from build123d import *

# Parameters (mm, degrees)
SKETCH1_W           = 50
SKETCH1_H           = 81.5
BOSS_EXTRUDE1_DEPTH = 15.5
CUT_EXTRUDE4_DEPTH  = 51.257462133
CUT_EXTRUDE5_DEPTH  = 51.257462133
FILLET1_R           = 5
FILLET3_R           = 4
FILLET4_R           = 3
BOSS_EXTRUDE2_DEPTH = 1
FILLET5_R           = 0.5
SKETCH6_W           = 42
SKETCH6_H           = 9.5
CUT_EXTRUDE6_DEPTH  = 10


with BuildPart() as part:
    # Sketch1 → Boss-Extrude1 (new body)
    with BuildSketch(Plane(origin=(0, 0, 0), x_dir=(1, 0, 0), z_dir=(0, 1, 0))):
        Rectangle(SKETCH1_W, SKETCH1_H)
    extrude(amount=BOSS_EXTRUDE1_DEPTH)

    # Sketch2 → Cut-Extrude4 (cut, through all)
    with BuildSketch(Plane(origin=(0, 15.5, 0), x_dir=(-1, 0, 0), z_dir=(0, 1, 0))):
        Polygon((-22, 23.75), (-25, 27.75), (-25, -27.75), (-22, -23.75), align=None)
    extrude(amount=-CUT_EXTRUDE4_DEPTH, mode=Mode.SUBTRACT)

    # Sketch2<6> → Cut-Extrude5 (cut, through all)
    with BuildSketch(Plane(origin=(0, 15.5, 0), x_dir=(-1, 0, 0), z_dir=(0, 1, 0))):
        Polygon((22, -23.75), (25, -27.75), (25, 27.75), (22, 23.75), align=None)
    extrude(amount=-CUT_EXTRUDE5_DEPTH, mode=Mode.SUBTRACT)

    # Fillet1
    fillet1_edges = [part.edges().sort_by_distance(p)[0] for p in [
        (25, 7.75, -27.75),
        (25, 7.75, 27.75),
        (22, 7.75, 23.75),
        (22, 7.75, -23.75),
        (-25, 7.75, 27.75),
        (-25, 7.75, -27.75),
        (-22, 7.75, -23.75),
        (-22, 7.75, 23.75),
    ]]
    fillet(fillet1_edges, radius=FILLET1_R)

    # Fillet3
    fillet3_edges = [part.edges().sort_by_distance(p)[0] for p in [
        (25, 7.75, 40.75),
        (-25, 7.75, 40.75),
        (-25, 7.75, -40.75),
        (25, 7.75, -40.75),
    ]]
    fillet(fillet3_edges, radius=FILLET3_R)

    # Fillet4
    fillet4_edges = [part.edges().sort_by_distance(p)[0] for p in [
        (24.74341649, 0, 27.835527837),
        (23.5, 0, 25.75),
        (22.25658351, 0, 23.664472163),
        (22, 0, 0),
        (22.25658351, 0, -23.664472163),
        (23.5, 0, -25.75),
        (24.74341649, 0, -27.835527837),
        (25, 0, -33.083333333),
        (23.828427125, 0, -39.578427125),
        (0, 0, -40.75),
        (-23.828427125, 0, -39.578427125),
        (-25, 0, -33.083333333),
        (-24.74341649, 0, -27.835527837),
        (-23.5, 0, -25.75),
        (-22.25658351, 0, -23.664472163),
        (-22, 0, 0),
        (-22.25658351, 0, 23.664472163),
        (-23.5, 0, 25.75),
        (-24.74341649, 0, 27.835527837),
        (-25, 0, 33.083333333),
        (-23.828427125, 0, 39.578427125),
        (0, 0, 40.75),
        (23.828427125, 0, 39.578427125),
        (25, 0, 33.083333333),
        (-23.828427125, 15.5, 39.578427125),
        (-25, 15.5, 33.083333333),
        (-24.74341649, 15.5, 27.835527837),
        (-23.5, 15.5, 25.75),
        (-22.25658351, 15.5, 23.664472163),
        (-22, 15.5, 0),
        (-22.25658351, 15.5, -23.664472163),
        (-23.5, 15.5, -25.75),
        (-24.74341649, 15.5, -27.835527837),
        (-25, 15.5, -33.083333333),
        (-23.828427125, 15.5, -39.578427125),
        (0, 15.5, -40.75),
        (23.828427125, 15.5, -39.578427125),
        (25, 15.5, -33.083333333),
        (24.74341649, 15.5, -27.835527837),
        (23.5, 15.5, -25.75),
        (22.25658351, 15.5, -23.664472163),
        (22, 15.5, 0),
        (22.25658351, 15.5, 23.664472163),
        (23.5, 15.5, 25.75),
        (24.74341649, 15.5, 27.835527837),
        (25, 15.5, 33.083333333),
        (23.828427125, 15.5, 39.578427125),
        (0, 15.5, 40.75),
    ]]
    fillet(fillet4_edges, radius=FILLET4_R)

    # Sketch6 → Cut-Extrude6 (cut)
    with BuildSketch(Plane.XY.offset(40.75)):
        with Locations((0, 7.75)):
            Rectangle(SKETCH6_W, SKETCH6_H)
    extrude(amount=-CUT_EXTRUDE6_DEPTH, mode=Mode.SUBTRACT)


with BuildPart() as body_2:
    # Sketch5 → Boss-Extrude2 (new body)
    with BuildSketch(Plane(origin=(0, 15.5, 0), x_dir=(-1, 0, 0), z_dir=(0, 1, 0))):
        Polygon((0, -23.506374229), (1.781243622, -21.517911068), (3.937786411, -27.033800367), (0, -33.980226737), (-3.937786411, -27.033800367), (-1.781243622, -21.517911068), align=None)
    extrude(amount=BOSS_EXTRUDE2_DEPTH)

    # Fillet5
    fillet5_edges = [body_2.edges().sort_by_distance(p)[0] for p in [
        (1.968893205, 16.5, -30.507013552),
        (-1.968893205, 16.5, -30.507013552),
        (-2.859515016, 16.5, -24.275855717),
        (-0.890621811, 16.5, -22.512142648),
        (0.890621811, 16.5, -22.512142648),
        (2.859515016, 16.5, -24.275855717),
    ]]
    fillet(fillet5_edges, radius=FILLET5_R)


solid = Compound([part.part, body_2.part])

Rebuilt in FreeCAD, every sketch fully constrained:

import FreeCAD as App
import Part
import Sketcher
from FreeCAD import Vector
Q = App.Units.Quantity


def edges_at(feature, points):
    """Names of the edges that pass closest to the given points."""
    edges = feature.Shape.Edges
    near = lambda p: min(range(len(edges)), key=lambda i: edges[i].distToShape(Part.Vertex(*p))[0])
    return sorted({f"Edge{near(p) + 1}" for p in points})

doc = App.newDocument("Part")
body = doc.addObject("PartDesign::Body", "Body")

sketch1 = doc.addObject("Sketcher::SketchObject", "Sketch")
body.addObject(sketch1)
sketch1.AttachmentSupport = (doc.XZ_Plane, [""])
sketch1.MapMode = "FlatFace"
sketch1.addGeometry(Part.LineSegment(Vector(-25, -41, 0), Vector(-25, 41, 0)), False)
sketch1.addGeometry(Part.LineSegment(Vector(-25, 41, 0), Vector(25, 41, 0)), False)
sketch1.addGeometry(Part.LineSegment(Vector(25, 41, 0), Vector(25, -41, 0)), False)
sketch1.addGeometry(Part.LineSegment(Vector(25, -41, 0), Vector(-25, -41, 0)), False)
sketch1.addConstraint(Sketcher.Constraint("Coincident", 0, 2, 1, 1))
sketch1.addConstraint(Sketcher.Constraint("Coincident", 1, 2, 2, 1))
sketch1.addConstraint(Sketcher.Constraint("Coincident", 2, 2, 3, 1))
sketch1.addConstraint(Sketcher.Constraint("Coincident", 3, 2, 0, 1))
sketch1.addConstraint(Sketcher.Constraint("Vertical", 0))
sketch1.addConstraint(Sketcher.Constraint("Horizontal", 1))
sketch1.addConstraint(Sketcher.Constraint("Vertical", 2))
sketch1.addConstraint(Sketcher.Constraint("Horizontal", 3))
sketch1.addConstraint(Sketcher.Constraint("Symmetric", 0, 2, 2, 2, -1, 1))
sketch1.addConstraint(Sketcher.Constraint("DistanceX", 1, 1, 1, 2, Q("50 mm")))
sketch1.addConstraint(Sketcher.Constraint("DistanceY", 0, 1, 0, 2, Q("81.5 mm")))
pad1 = doc.addObject("PartDesign::Pad", "Pad")
body.addObject(pad1)
pad1.Profile = sketch1
pad1.Length = 15.5
pad1.Reversed = True

sketch2 = doc.addObject("Sketcher::SketchObject", "Sketch001")
body.addObject(sketch2)
sketch2.AttachmentSupport = (doc.XZ_Plane, [""])
sketch2.MapMode = "FlatFace"
sketch2.AttachmentOffset = App.Placement(Vector(0, 0, -15.5), App.Rotation())
sketch2.addGeometry(Part.LineSegment(Vector(22, 24, 0), Vector(25, 28, 0)), False)
sketch2.addGeometry(Part.LineSegment(Vector(25, 28, 0), Vector(25, -28, 0)), False)
sketch2.addGeometry(Part.LineSegment(Vector(25, -28, 0), Vector(22, -24, 0)), False)
sketch2.addGeometry(Part.LineSegment(Vector(22, -24, 0), Vector(22, 24, 0)), False)
sketch2.addConstraint(Sketcher.Constraint("Coincident", 0, 2, 1, 1))
sketch2.addConstraint(Sketcher.Constraint("Coincident", 1, 2, 2, 1))
sketch2.addConstraint(Sketcher.Constraint("Coincident", 2, 2, 3, 1))
sketch2.addConstraint(Sketcher.Constraint("Coincident", 3, 2, 0, 1))
sketch2.addConstraint(Sketcher.Constraint("Vertical", 1))
sketch2.addConstraint(Sketcher.Constraint("Vertical", 3))
sketch2.addConstraint(Sketcher.Constraint("Equal", 0, 2))
sketch2.addConstraint(Sketcher.Constraint("Distance", 0, Q("5 mm")))
sketch2.addConstraint(Sketcher.Constraint("DistanceY", 1, 2, 1, 1, Q("55.5 mm")))
sketch2.addConstraint(Sketcher.Constraint("DistanceY", 3, 1, 3, 2, Q("47.5 mm")))
sketch2.addConstraint(Sketcher.Constraint("DistanceX", -1, 1, 0, 2, Q("25 mm")))
sketch2.addConstraint(Sketcher.Constraint("DistanceY", -1, 1, 0, 2, Q("27.75 mm")))
pocket1 = doc.addObject("PartDesign::Pocket", "Pocket")
body.addObject(pocket1)
pocket1.Profile = sketch2
pocket1.Type = "ThroughAll"
pocket1.Reversed = True

sketch3 = doc.addObject("Sketcher::SketchObject", "Sketch002")
body.addObject(sketch3)
sketch3.AttachmentSupport = (doc.XZ_Plane, [""])
sketch3.MapMode = "FlatFace"
sketch3.AttachmentOffset = App.Placement(Vector(0, 0, -15.5), App.Rotation())
sketch3.addGeometry(Part.LineSegment(Vector(-22, -24, 0), Vector(-25, -28, 0)), False)
sketch3.addGeometry(Part.LineSegment(Vector(-25, -28, 0), Vector(-25, 28, 0)), False)
sketch3.addGeometry(Part.LineSegment(Vector(-25, 28, 0), Vector(-22, 24, 0)), False)
sketch3.addGeometry(Part.LineSegment(Vector(-22, 24, 0), Vector(-22, -24, 0)), False)
sketch3.addConstraint(Sketcher.Constraint("Coincident", 0, 2, 1, 1))
sketch3.addConstraint(Sketcher.Constraint("Coincident", 1, 2, 2, 1))
sketch3.addConstraint(Sketcher.Constraint("Coincident", 2, 2, 3, 1))
sketch3.addConstraint(Sketcher.Constraint("Coincident", 3, 2, 0, 1))
sketch3.addConstraint(Sketcher.Constraint("Vertical", 1))
sketch3.addConstraint(Sketcher.Constraint("Vertical", 3))
sketch3.addConstraint(Sketcher.Constraint("Equal", 0, 2))
sketch3.addConstraint(Sketcher.Constraint("Distance", 0, Q("5 mm")))
sketch3.addConstraint(Sketcher.Constraint("DistanceY", 1, 1, 1, 2, Q("55.5 mm")))
sketch3.addConstraint(Sketcher.Constraint("DistanceY", 3, 2, 3, 1, Q("47.5 mm")))
sketch3.addConstraint(Sketcher.Constraint("DistanceX", 0, 2, -1, 1, Q("25 mm")))
sketch3.addConstraint(Sketcher.Constraint("DistanceY", 0, 2, -1, 1, Q("27.75 mm")))
pocket2 = doc.addObject("PartDesign::Pocket", "Pocket001")
body.addObject(pocket2)
pocket2.Profile = sketch3
pocket2.Type = "ThroughAll"
pocket2.Reversed = True
doc.recompute()

fillet = doc.addObject("PartDesign::Fillet", "Fillet")
body.addObject(fillet)
fillet.Base = (pocket2, edges_at(pocket2, [
    (25, 7.75, -27.75),
    (25, 7.75, 27.75),
    (22, 7.75, 23.75),
    (22, 7.75, -23.75),
    (-25, 7.75, 27.75),
    (-25, 7.75, -27.75),
    (-22, 7.75, -23.75),
    (-22, 7.75, 23.75),
]))
fillet.Radius = 5
doc.recompute()

fillet2 = doc.addObject("PartDesign::Fillet", "Fillet001")
body.addObject(fillet2)
fillet2.Base = (fillet, edges_at(fillet, [
    (25, 7.75, 40.75),
    (-25, 7.75, 40.75),
    (-25, 7.75, -40.75),
    (25, 7.75, -40.75),
]))
fillet2.Radius = 4
doc.recompute()

fillet3 = doc.addObject("PartDesign::Fillet", "Fillet002")
body.addObject(fillet3)
fillet3.Base = (fillet2, edges_at(fillet2, [
    (24.743, 0, 27.836),
    (23.5, 0, 25.75),
    (22.257, 0, 23.664),
    (22, 0, 0),
    (22.257, 0, -23.664),
    (23.5, 0, -25.75),
    (24.743, 0, -27.836),
    (25, 0, -33.083),
    (23.828, 0, -39.578),
    (0, 0, -40.75),
    (-23.828, 0, -39.578),
    (-25, 0, -33.083),
    (-24.743, 0, -27.836),
    (-23.5, 0, -25.75),
    (-22.257, 0, -23.664),
    (-22, 0, 0),
    (-22.257, 0, 23.664),
    (-23.5, 0, 25.75),
    (-24.743, 0, 27.836),
    (-25, 0, 33.083),
    (-23.828, 0, 39.578),
    (0, 0, 40.75),
    (23.828, 0, 39.578),
    (25, 0, 33.083),
    (-23.828, 15.5, 39.578),
    (-25, 15.5, 33.083),
    (-24.743, 15.5, 27.836),
    (-23.5, 15.5, 25.75),
    (-22.257, 15.5, 23.664),
    (-22, 15.5, 0),
    (-22.257, 15.5, -23.664),
    (-23.5, 15.5, -25.75),
    (-24.743, 15.5, -27.836),
    (-25, 15.5, -33.083),
    (-23.828, 15.5, -39.578),
    (0, 15.5, -40.75),
    (23.828, 15.5, -39.578),
    (25, 15.5, -33.083),
    (24.743, 15.5, -27.836),
    (23.5, 15.5, -25.75),
    (22.257, 15.5, -23.664),
    (22, 15.5, 0),
    (22.257, 15.5, 23.664),
    (23.5, 15.5, 25.75),
    (24.743, 15.5, 27.836),
    (25, 15.5, 33.083),
    (23.828, 15.5, 39.578),
    (0, 15.5, 40.75),
]))
fillet3.Radius = 3

sketch4 = doc.addObject("Sketcher::SketchObject", "Sketch003")
body.addObject(sketch4)
sketch4.AttachmentSupport = (doc.XY_Plane, [""])
sketch4.MapMode = "FlatFace"
sketch4.AttachmentOffset = App.Placement(Vector(0, 0, 40.75), App.Rotation())
sketch4.addGeometry(Part.LineSegment(Vector(-21, 12, 0), Vector(-21, 3, 0)), False)
sketch4.addGeometry(Part.LineSegment(Vector(-21, 3, 0), Vector(21, 3, 0)), False)
sketch4.addGeometry(Part.LineSegment(Vector(21, 3, 0), Vector(21, 12, 0)), False)
sketch4.addGeometry(Part.LineSegment(Vector(21, 12, 0), Vector(-21, 12, 0)), False)
sketch4.addConstraint(Sketcher.Constraint("Coincident", 0, 2, 1, 1))
sketch4.addConstraint(Sketcher.Constraint("Coincident", 1, 2, 2, 1))
sketch4.addConstraint(Sketcher.Constraint("Coincident", 2, 2, 3, 1))
sketch4.addConstraint(Sketcher.Constraint("Coincident", 3, 2, 0, 1))
sketch4.addConstraint(Sketcher.Constraint("Vertical", 0))
sketch4.addConstraint(Sketcher.Constraint("Horizontal", 1))
sketch4.addConstraint(Sketcher.Constraint("Vertical", 2))
sketch4.addConstraint(Sketcher.Constraint("Horizontal", 3))
sketch4.addConstraint(Sketcher.Constraint("DistanceX", 1, 1, 1, 2, Q("42 mm")))
sketch4.addConstraint(Sketcher.Constraint("DistanceY", 0, 2, 0, 1, Q("9.5 mm")))
sketch4.addConstraint(Sketcher.Constraint("DistanceX", 0, 2, -1, 1, Q("21 mm")))
sketch4.addConstraint(Sketcher.Constraint("DistanceY", -1, 1, 0, 2, Q("3 mm")))
pocket3 = doc.addObject("PartDesign::Pocket", "Pocket002")
body.addObject(pocket3)
pocket3.Profile = sketch4
pocket3.Length = 10
body2 = doc.addObject("PartDesign::Body", "Body001")

sketch5 = doc.addObject("Sketcher::SketchObject", "Sketch004")
body2.addObject(sketch5)
sketch5.AttachmentSupport = (doc.getObject("XZ_Plane001"), [""])
sketch5.MapMode = "FlatFace"
sketch5.AttachmentOffset = App.Placement(Vector(0, 0, -15.5), App.Rotation())
sketch5.addGeometry(Part.LineSegment(Vector(-1.8, -21.5, 0), Vector(0, -23.5, 0)), False)
sketch5.addGeometry(Part.LineSegment(Vector(0, -23.5, 0), Vector(1.8, -21.5, 0)), False)
sketch5.addGeometry(Part.LineSegment(Vector(1.8, -21.5, 0), Vector(3.9, -27, 0)), False)
sketch5.addGeometry(Part.LineSegment(Vector(3.9, -27, 0), Vector(0, -34, 0)), False)
sketch5.addGeometry(Part.LineSegment(Vector(0, -34, 0), Vector(-3.9, -27, 0)), False)
sketch5.addGeometry(Part.LineSegment(Vector(-3.9, -27, 0), Vector(-1.8, -21.5, 0)), False)
sketch5.addConstraint(Sketcher.Constraint("Coincident", 0, 2, 1, 1))
sketch5.addConstraint(Sketcher.Constraint("Coincident", 1, 2, 2, 1))
sketch5.addConstraint(Sketcher.Constraint("Coincident", 2, 2, 3, 1))
sketch5.addConstraint(Sketcher.Constraint("Coincident", 3, 2, 4, 1))
sketch5.addConstraint(Sketcher.Constraint("Coincident", 4, 2, 5, 1))
sketch5.addConstraint(Sketcher.Constraint("Coincident", 5, 2, 0, 1))
sketch5.addConstraint(Sketcher.Constraint("Symmetric", 2, 2, 4, 2, -2))
sketch5.addConstraint(Sketcher.Constraint("Symmetric", 1, 2, 5, 2, -2))
sketch5.addConstraint(Sketcher.Constraint("PointOnObject", 0, 2, -2))
sketch5.addConstraint(Sketcher.Constraint("PointOnObject", 3, 2, -2))
sketch5.addConstraint(Sketcher.Constraint("DistanceY", 2, 2, -1, 1, Q("27.0338 mm")))
sketch5.addConstraint(Sketcher.Constraint("Distance", 0, Q("2.669609 mm")))
sketch5.addConstraint(Sketcher.Constraint("DistanceY", 1, 2, -1, 1, Q("21.517911 mm")))
sketch5.addConstraint(Sketcher.Constraint("DistanceX", 4, 2, 1, 2, Q("5.71903 mm")))
sketch5.addConstraint(Sketcher.Constraint("Distance", 2, Q("5.922475 mm")))
sketch5.addConstraint(Sketcher.Constraint("Distance", 3, Q("7.984923 mm")))
pad2 = doc.addObject("PartDesign::Pad", "Pad001")
body2.addObject(pad2)
pad2.Profile = sketch5
pad2.Length = 1
pad2.Reversed = True
doc.recompute()

fillet4 = doc.addObject("PartDesign::Fillet", "Fillet003")
body2.addObject(fillet4)
fillet4.Base = (pad2, edges_at(pad2, [
    (1.969, 16.5, -30.507),
    (-1.969, 16.5, -30.507),
    (-2.86, 16.5, -24.276),
    (-0.891, 16.5, -22.512),
    (0.891, 16.5, -22.512),
    (2.86, 16.5, -24.276),
]))
fillet4.Radius = 0.5

doc.recompute()
